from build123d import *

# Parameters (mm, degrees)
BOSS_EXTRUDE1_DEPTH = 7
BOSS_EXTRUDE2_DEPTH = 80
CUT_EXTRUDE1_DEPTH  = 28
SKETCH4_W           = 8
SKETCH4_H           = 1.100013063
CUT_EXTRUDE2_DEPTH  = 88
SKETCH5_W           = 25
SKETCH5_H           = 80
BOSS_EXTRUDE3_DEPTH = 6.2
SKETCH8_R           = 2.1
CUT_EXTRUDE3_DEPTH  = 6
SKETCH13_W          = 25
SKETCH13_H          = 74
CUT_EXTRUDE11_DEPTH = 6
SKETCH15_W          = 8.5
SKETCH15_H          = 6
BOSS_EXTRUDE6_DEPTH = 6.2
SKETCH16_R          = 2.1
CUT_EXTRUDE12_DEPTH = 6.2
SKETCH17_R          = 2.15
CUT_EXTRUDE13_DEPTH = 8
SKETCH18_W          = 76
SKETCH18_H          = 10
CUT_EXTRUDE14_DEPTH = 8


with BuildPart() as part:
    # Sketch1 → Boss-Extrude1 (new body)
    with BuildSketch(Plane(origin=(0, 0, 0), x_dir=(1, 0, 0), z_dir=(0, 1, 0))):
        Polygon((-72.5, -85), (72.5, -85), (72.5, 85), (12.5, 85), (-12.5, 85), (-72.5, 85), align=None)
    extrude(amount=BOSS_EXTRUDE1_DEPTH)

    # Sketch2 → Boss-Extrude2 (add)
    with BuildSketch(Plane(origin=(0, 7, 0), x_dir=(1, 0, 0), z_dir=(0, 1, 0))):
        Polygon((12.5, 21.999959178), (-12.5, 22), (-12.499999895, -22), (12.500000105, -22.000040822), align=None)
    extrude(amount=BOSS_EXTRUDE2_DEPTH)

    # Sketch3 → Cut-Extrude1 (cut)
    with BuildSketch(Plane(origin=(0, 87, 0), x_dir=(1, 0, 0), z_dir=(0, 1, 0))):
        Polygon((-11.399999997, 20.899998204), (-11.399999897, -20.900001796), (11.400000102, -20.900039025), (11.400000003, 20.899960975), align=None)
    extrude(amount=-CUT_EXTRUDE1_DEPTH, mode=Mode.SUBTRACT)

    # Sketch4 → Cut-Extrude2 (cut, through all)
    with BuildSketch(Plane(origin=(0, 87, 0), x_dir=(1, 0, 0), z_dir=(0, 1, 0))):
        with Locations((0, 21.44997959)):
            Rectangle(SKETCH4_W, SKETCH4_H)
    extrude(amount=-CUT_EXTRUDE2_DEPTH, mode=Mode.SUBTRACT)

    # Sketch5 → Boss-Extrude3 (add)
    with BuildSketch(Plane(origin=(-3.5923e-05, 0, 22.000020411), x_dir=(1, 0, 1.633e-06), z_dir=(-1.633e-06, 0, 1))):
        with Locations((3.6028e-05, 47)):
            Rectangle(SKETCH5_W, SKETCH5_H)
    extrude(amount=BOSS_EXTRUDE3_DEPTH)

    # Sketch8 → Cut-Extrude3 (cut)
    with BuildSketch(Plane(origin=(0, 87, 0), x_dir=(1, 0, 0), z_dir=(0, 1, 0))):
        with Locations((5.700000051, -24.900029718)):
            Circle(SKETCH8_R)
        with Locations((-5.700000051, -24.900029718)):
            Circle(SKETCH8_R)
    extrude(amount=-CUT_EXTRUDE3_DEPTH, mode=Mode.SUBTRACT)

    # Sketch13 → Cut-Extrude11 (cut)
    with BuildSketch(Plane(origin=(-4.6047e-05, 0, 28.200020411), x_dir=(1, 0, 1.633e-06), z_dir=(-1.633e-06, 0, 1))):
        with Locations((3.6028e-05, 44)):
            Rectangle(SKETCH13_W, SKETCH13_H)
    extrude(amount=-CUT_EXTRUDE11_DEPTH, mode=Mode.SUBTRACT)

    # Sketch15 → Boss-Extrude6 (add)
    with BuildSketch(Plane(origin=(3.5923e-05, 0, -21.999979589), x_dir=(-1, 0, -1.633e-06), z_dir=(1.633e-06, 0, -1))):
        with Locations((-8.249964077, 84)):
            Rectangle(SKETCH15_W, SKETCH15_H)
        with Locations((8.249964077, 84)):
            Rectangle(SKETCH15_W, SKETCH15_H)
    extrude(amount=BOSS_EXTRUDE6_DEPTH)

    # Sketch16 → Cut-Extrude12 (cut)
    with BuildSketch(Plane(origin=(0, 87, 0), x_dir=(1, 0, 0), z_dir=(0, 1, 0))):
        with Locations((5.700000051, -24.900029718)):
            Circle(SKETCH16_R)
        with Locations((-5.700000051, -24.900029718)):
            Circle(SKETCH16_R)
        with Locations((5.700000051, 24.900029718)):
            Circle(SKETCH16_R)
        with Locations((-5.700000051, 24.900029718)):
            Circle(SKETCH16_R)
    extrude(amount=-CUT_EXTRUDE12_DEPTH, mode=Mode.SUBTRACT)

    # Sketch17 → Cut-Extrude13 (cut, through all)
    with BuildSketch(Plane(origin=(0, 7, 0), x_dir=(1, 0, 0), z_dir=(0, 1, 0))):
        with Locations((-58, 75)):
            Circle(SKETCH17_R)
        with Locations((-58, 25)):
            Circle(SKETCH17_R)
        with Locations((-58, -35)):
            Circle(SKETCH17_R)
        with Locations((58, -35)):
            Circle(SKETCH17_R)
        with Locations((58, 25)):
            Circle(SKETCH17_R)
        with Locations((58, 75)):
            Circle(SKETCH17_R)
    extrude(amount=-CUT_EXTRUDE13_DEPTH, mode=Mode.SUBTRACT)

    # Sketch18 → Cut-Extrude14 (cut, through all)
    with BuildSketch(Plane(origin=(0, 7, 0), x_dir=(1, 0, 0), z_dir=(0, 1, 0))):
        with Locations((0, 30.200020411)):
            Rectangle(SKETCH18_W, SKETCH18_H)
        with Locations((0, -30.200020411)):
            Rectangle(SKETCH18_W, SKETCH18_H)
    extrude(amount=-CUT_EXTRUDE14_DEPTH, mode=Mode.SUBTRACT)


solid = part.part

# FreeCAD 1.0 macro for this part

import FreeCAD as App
import Part
import Sketcher
from FreeCAD import Vector


def add_polygon(sketch, points):
    """Adds a closed chain of lines whose ends are joined by coincident constraints."""
    first, n = sketch.GeometryCount, len(points)
    for a, b in zip(points, points[1:] + points[:1]):
        sketch.addGeometry(Part.LineSegment(App.Vector(*a, 0), App.Vector(*b, 0)), False)
    for i in range(n):
        sketch.addConstraint(Sketcher.Constraint("Coincident", first + i, 2, first + (i + 1) % n, 1))

doc = App.newDocument("Part")
body = doc.addObject("PartDesign::Body", "Body")

# Sketch on XZ plane
sketch1 = doc.addObject("Sketcher::SketchObject", "Sketch")
body.addObject(sketch1)
sketch1.AttachmentSupport = (doc.XZ_Plane, [""])
sketch1.MapMode = "FlatFace"
add_polygon(sketch1, [(-72, 85), (72, 85), (72, -85), (-72, -85)])  # lines 0-3
sketch1.addConstraint(Sketcher.Constraint("Horizontal", 0))
sketch1.addConstraint(Sketcher.Constraint("Vertical", 1))
sketch1.addConstraint(Sketcher.Constraint("Horizontal", 2))
sketch1.addConstraint(Sketcher.Constraint("Vertical", 3))
sketch1.addConstraint(Sketcher.Constraint("Symmetric", 0, 2, 2, 2, -1, 1))
sketch1.addConstraint(Sketcher.Constraint("DistanceX", 0, 1, 0, 2, 145.0))
sketch1.addConstraint(Sketcher.Constraint("DistanceY", 1, 2, 1, 1, 170.0))
pad1 = doc.addObject("PartDesign::Pad", "Pad")
body.addObject(pad1)
pad1.Profile = sketch1
pad1.Length = 7
pad1.Reversed = True

# Sketch on XZ plane
sketch2 = doc.addObject("Sketcher::SketchObject", "Sketch001")
body.addObject(sketch2)
sketch2.AttachmentSupport = (doc.XZ_Plane, [""])
sketch2.MapMode = "FlatFace"
sketch2.AttachmentOffset = App.Placement(Vector(0, 0, -7), App.Rotation())
add_polygon(sketch2, [(12.5, -21.999959), (-12.5, -22), (-12.5, 22), (12.5, 22.000041)])  # lines 0-3
sketch2.addConstraint(Sketcher.Constraint("Vertical", 1))
sketch2.addConstraint(Sketcher.Constraint("Vertical", 3))
sketch2.addConstraint(Sketcher.Constraint("Parallel", 0, 2))
sketch2.addConstraint(Sketcher.Constraint("DistanceY", 1, 1, 1, 2, 44.0))
sketch2.addConstraint(Sketcher.Constraint("Distance", 0, 25.0))
sketch2.addConstraint(Sketcher.Constraint("DistanceY", 0, 2, -1, 1, 22.0))
sketch2.addConstraint(Sketcher.Constraint("DistanceX", 0, 2, -1, 1, 12.5))
sketch2.addConstraint(Sketcher.Constraint("DistanceY", -1, 1, 2, 2, 22.000041))
pad2 = doc.addObject("PartDesign::Pad", "Pad001")
body.addObject(pad2)
pad2.Profile = sketch2
pad2.Length = 80
pad2.Reversed = True

# Sketch on XZ plane
sketch3 = doc.addObject("Sketcher::SketchObject", "Sketch002")
body.addObject(sketch3)
sketch3.AttachmentSupport = (doc.XZ_Plane, [""])
sketch3.MapMode = "FlatFace"
sketch3.AttachmentOffset = App.Placement(Vector(0, 0, -87), App.Rotation())
add_polygon(sketch3, [(-11, -21), (-11, 21), (11, 21), (11, -21)])  # lines 0-3
sketch3.addConstraint(Sketcher.Constraint("Vertical", 0))
sketch3.addConstraint(Sketcher.Constraint("Vertical", 2))
sketch3.addConstraint(Sketcher.Constraint("Parallel", 1, 3))
sketch3.addConstraint(Sketcher.Constraint("DistanceY", 0, 1, 0, 2, 41.8))
sketch3.addConstraint(Sketcher.Constraint("Distance", 1, 22.8))
sketch3.addConstraint(Sketcher.Constraint("DistanceX", 0, 2, -1, 1, 11.4))
sketch3.addConstraint(Sketcher.Constraint("DistanceY", -1, 1, 0, 2, 20.900002))
sketch3.addConstraint(Sketcher.Constraint("DistanceY", -1, 1, 1, 2, 20.900039))
pocket1 = doc.addObject("PartDesign::Pocket", "Pocket")
body.addObject(pocket1)
pocket1.Profile = sketch3
pocket1.Length = 28
pocket1.Reversed = True

# Sketch on XZ plane
sketch4 = doc.addObject("Sketcher::SketchObject", "Sketch003")
body.addObject(sketch4)
sketch4.AttachmentSupport = (doc.XZ_Plane, [""])
sketch4.MapMode = "FlatFace"
sketch4.AttachmentOffset = App.Placement(Vector(0, 0, -87), App.Rotation())
add_polygon(sketch4, [(-4, -21.999986), (-4, -20.899973), (4, -20.899973), (4, -21.999986)])  # lines 0-3
sketch4.addConstraint(Sketcher.Constraint("Vertical", 0))
sketch4.addConstraint(Sketcher.Constraint("Horizontal", 1))
sketch4.addConstraint(Sketcher.Constraint("Vertical", 2))
sketch4.addConstraint(Sketcher.Constraint("Horizontal", 3))
sketch4.addConstraint(Sketcher.Constraint("DistanceX", 1, 1, 1, 2, 8.0))
sketch4.addConstraint(Sketcher.Constraint("DistanceX", 0, 2, -1, 1, 4.0))
sketch4.addConstraint(Sketcher.Constraint("DistanceY", 0, 1, 0, 2, 1.100013))
sketch4.addConstraint(Sketcher.Constraint("DistanceY", 0, 2, -1, 1, 20.899973))
pocket2 = doc.addObject("PartDesign::Pocket", "Pocket001")
body.addObject(pocket2)
pocket2.Profile = sketch4
pocket2.Type = "ThroughAll"
pocket2.Reversed = True

# Sketch on XY plane
sketch5 = doc.addObject("Sketcher::SketchObject", "Sketch004")
body.addObject(sketch5)
sketch5.AttachmentSupport = (doc.XY_Plane, [""])
sketch5.MapMode = "FlatFace"
sketch5.AttachmentOffset = App.Placement(Vector(0, 0, 22.00002), App.Rotation())
add_polygon(sketch5, [(-12, 87), (-12, 7), (13, 7), (13, 87)])  # lines 0-3
sketch5.addConstraint(Sketcher.Constraint("Vertical", 0))
sketch5.addConstraint(Sketcher.Constraint("Horizontal", 1))
sketch5.addConstraint(Sketcher.Constraint("Vertical", 2))
sketch5.addConstraint(Sketcher.Constraint("Horizontal", 3))
sketch5.addConstraint(Sketcher.Constraint("DistanceX", 1, 1, 1, 2, 25.0))
sketch5.addConstraint(Sketcher.Constraint("DistanceY", 0, 2, 0, 1, 80.0))
sketch5.addConstraint(Sketcher.Constraint("DistanceY", -1, 1, 0, 2, 7.0))
sketch5.addConstraint(Sketcher.Constraint("DistanceX", 0, 2, -1, 1, 12.5))
pad3 = doc.addObject("PartDesign::Pad", "Pad002")
body.addObject(pad3)
pad3.Profile = sketch5
pad3.Length = 6.2

# Sketch on XZ plane
sketch6 = doc.addObject("Sketcher::SketchObject", "Sketch005")
body.addObject(sketch6)
sketch6.AttachmentSupport = (doc.XZ_Plane, [""])
sketch6.MapMode = "FlatFace"
sketch6.AttachmentOffset = App.Placement(Vector(0, 0, -87), App.Rotation())
sketch6.addGeometry(Part.Circle(Vector(5.7, 24.90003, 0), Vector(0, 0, 1), 2.1), False)
sketch6.addGeometry(Part.Circle(Vector(-5.7, 24.90003, 0), Vector(0, 0, 1), 2.1), False)
sketch6.addConstraint(Sketcher.Constraint("Equal", 0, 1))
sketch6.addConstraint(Sketcher.Constraint("Symmetric", 0, 3, 1, 3, -2))
sketch6.addConstraint(Sketcher.Constraint("Diameter", 0, 4.2))
sketch6.addConstraint(Sketcher.Constraint("DistanceX", -1, 1, 0, 3, 5.7))
sketch6.addConstraint(Sketcher.Constraint("DistanceY", -1, 1, 0, 3, 24.90003))
pocket3 = doc.addObject("PartDesign::Pocket", "Pocket002")
body.addObject(pocket3)
pocket3.Profile = sketch6
pocket3.Length = 6
pocket3.Reversed = True

# Sketch on XY plane
sketch7 = doc.addObject("Sketcher::SketchObject", "Sketch006")
body.addObject(sketch7)
sketch7.AttachmentSupport = (doc.XY_Plane, [""])
sketch7.MapMode = "FlatFace"
sketch7.AttachmentOffset = App.Placement(Vector(0, 0, 28.20002), App.Rotation())
add_polygon(sketch7, [(-13, 81), (-13, 7), (12, 7), (12, 81)])  # lines 0-3
sketch7.addConstraint(Sketcher.Constraint("Vertical", 0))
sketch7.addConstraint(Sketcher.Constraint("Horizontal", 1))
sketch7.addConstraint(Sketcher.Constraint("Vertical", 2))
sketch7.addConstraint(Sketcher.Constraint("Horizontal", 3))
sketch7.addConstraint(Sketcher.Constraint("DistanceX", 1, 1, 1, 2, 25.0))
sketch7.addConstraint(Sketcher.Constraint("DistanceY", 0, 2, 0, 1, 74.0))
sketch7.addConstraint(Sketcher.Constraint("DistanceY", -1, 1, 0, 2, 7.0))
sketch7.addConstraint(Sketcher.Constraint("DistanceX", 0, 2, -1, 1, 12.50001))
pocket4 = doc.addObject("PartDesign::Pocket", "Pocket003")
body.addObject(pocket4)
pocket4.Profile = sketch7
pocket4.Length = 6

# Sketch on XY plane
sketch8 = doc.addObject("Sketcher::SketchObject", "Sketch007")
body.addObject(sketch8)
sketch8.AttachmentSupport = (doc.XY_Plane, [""])
sketch8.MapMode = "FlatFace"
sketch8.AttachmentOffset = App.Placement(Vector(0, 0, -21.99998), App.Rotation())
add_polygon(sketch8, [(12, 87), (12, 81), (4, 81), (4, 87)])  # lines 0-3
add_polygon(sketch8, [(-4, 87), (-4, 81), (-12, 81), (-12, 87)])  # lines 4-7
sketch8.addConstraint(Sketcher.Constraint("Vertical", 0))
sketch8.addConstraint(Sketcher.Constraint("Horizontal", 1))
sketch8.addConstraint(Sketcher.Constraint("Vertical", 2))
sketch8.addConstraint(Sketcher.Constraint("Horizontal", 3))
sketch8.addConstraint(Sketcher.Constraint("Vertical", 4))
sketch8.addConstraint(Sketcher.Constraint("Horizontal", 5))
sketch8.addConstraint(Sketcher.Constraint("Vertical", 6))
sketch8.addConstraint(Sketcher.Constraint("Horizontal", 7))
sketch8.addConstraint(Sketcher.Constraint("Horizontal", 1, 2, 4, 2))
sketch8.addConstraint(Sketcher.Constraint("Horizontal", 3, 2, 6, 2))
sketch8.addConstraint(Sketcher.Constraint("Equal", 3, 5))
sketch8.addConstraint(Sketcher.Constraint("DistanceY", 0, 2, 0, 1, 6.0))
sketch8.addConstraint(Sketcher.Constraint("DistanceX", 1, 2, 1, 1, 8.5))
sketch8.addConstraint(Sketcher.Constraint("DistanceY", -1, 1, 0, 2, 81.0))
sketch8.addConstraint(Sketcher.Constraint("DistanceX", -1, 1, 1, 2, 4.0))
sketch8.addConstraint(Sketcher.Constraint("DistanceX", 4, 2, -1, 1, 3.999928))
pad4 = doc.addObject("PartDesign::Pad", "Pad003")
body.addObject(pad4)
pad4.Profile = sketch8
pad4.Length = 6.2
pad4.Reversed = True

# Sketch on XZ plane
sketch9 = doc.addObject("Sketcher::SketchObject", "Sketch008")
body.addObject(sketch9)
sketch9.AttachmentSupport = (doc.XZ_Plane, [""])
sketch9.MapMode = "FlatFace"
sketch9.AttachmentOffset = App.Placement(Vector(0, 0, -87), App.Rotation())
sketch9.addGeometry(Part.Circle(Vector(5.7, 24.90003, 0), Vector(0, 0, 1), 2.1), False)
sketch9.addGeometry(Part.Circle(Vector(-5.7, 24.90003, 0), Vector(0, 0, 1), 2.1), False)
sketch9.addGeometry(Part.Circle(Vector(5.7, -24.90003, 0), Vector(0, 0, 1), 2.1), False)
sketch9.addGeometry(Part.Circle(Vector(-5.7, -24.90003, 0), Vector(0, 0, 1), 2.1), False)
sketch9.addConstraint(Sketcher.Constraint("Equal", 0, 1))
sketch9.addConstraint(Sketcher.Constraint("Equal", 1, 2))
sketch9.addConstraint(Sketcher.Constraint("Equal", 2, 3))
sketch9.addConstraint(Sketcher.Constraint("Symmetric", 1, 3, 2, 3, -1, 1))
sketch9.addConstraint(Sketcher.Constraint("Symmetric", 0, 3, 3, 3, -1, 1))
sketch9.addConstraint(Sketcher.Constraint("Symmetric", 0, 3, 1, 3, -2))
sketch9.addConstraint(Sketcher.Constraint("Diameter", 0, 4.2))
sketch9.addConstraint(Sketcher.Constraint("DistanceX", -1, 1, 0, 3, 5.7))
sketch9.addConstraint(Sketcher.Constraint("DistanceY", -1, 1, 0, 3, 24.90003))
pocket5 = doc.addObject("PartDesign::Pocket", "Pocket004")
body.addObject(pocket5)
pocket5.Profile = sketch9
pocket5.Length = 6.2
pocket5.Reversed = True

# Sketch on XZ plane
sketch10 = doc.addObject("Sketcher::SketchObject", "Sketch009")
body.addObject(sketch10)
sketch10.AttachmentSupport = (doc.XZ_Plane, [""])
sketch10.MapMode = "FlatFace"
sketch10.AttachmentOffset = App.Placement(Vector(0, 0, -7), App.Rotation())
sketch10.addGeometry(Part.Circle(Vector(-58, -75, 0), Vector(0, 0, 1), 2.1), False)
sketch10.addGeometry(Part.Circle(Vector(-58, -25, 0), Vector(0, 0, 1), 2.1), False)
sketch10.addGeometry(Part.Circle(Vector(-58, 35, 0), Vector(0, 0, 1), 2.1), False)
sketch10.addGeometry(Part.Circle(Vector(58, 35, 0), Vector(0, 0, 1), 2.1), False)
sketch10.addGeometry(Part.Circle(Vector(58, -25, 0), Vector(0, 0, 1), 2.1), False)
sketch10.addGeometry(Part.Circle(Vector(58, -75, 0), Vector(0, 0, 1), 2.1), False)
sketch10.addConstraint(Sketcher.Constraint("Equal", 0, 1))
sketch10.addConstraint(Sketcher.Constraint("Equal", 1, 2))
sketch10.addConstraint(Sketcher.Constraint("Equal", 2, 3))
sketch10.addConstraint(Sketcher.Constraint("Equal", 3, 4))
sketch10.addConstraint(Sketcher.Constraint("Equal", 4, 5))
sketch10.addConstraint(Sketcher.Constraint("Symmetric", 2, 3, 3, 3, -2))
sketch10.addConstraint(Sketcher.Constraint("Symmetric", 1, 3, 4, 3, -2))
sketch10.addConstraint(Sketcher.Constraint("Symmetric", 0, 3, 5, 3, -2))
sketch10.addConstraint(Sketcher.Constraint("Vertical", 0, 3, 1, 3))
sketch10.addConstraint(Sketcher.Constraint("Vertical", 1, 3, 2, 3))
sketch10.addConstraint(Sketcher.Constraint("Diameter", 0, 4.3))
sketch10.addConstraint(Sketcher.Constraint("DistanceX", 0, 3, -1, 1, 58.0))
sketch10.addConstraint(Sketcher.Constraint("DistanceY", 0, 3, -1, 1, 75.0))
sketch10.addConstraint(Sketcher.Constraint("DistanceY", 1, 3, -1, 1, 25.0))
sketch10.addConstraint(Sketcher.Constraint("DistanceY", -1, 1, 2, 3, 35.0))
pocket6 = doc.addObject("PartDesign::Pocket", "Pocket005")
body.addObject(pocket6)
pocket6.Profile = sketch10
pocket6.Type = "ThroughAll"
pocket6.Reversed = True

# Sketch on XZ plane
sketch11 = doc.addObject("Sketcher::SketchObject", "Sketch010")
body.addObject(sketch11)
sketch11.AttachmentSupport = (doc.XZ_Plane, [""])
sketch11.MapMode = "FlatFace"
sketch11.AttachmentOffset = App.Placement(Vector(0, 0, -7), App.Rotation())
add_polygon(sketch11, [(-38, -35), (-38, -25), (38, -25), (38, -35)])  # lines 0-3
add_polygon(sketch11, [(-38, 25), (-38, 35), (38, 35), (38, 25)])  # lines 4-7
sketch11.addConstraint(Sketcher.Constraint("Vertical", 0))
sketch11.addConstraint(Sketcher.Constraint("Horizontal", 1))
sketch11.addConstraint(Sketcher.Constraint("Vertical", 2))
sketch11.addConstraint(Sketcher.Constraint("Horizontal", 3))
sketch11.addConstraint(Sketcher.Constraint("Vertical", 4))
sketch11.addConstraint(Sketcher.Constraint("Horizontal", 5))
sketch11.addConstraint(Sketcher.Constraint("Vertical", 6))
sketch11.addConstraint(Sketcher.Constraint("Horizontal", 7))
sketch11.addConstraint(Sketcher.Constraint("Symmetric", 2, 2, 4, 2, -1, 1))
sketch11.addConstraint(Sketcher.Constraint("Symmetric", 0, 2, 6, 2, -1, 1))
sketch11.addConstraint(Sketcher.Constraint("Vertical", 3, 2, 4, 2))
sketch11.addConstraint(Sketcher.Constraint("DistanceX", 1, 1, 1, 2, 76.0))
sketch11.addConstraint(Sketcher.Constraint("DistanceY", 0, 1, 0, 2, 10.0))
sketch11.addConstraint(Sketcher.Constraint("DistanceY", 0, 2, -1, 1, 25.20002))
pocket7 = doc.addObject("PartDesign::Pocket", "Pocket006")
body.addObject(pocket7)
pocket7.Profile = sketch11
pocket7.Type = "ThroughAll"
pocket7.Reversed = True

doc.recompute()
